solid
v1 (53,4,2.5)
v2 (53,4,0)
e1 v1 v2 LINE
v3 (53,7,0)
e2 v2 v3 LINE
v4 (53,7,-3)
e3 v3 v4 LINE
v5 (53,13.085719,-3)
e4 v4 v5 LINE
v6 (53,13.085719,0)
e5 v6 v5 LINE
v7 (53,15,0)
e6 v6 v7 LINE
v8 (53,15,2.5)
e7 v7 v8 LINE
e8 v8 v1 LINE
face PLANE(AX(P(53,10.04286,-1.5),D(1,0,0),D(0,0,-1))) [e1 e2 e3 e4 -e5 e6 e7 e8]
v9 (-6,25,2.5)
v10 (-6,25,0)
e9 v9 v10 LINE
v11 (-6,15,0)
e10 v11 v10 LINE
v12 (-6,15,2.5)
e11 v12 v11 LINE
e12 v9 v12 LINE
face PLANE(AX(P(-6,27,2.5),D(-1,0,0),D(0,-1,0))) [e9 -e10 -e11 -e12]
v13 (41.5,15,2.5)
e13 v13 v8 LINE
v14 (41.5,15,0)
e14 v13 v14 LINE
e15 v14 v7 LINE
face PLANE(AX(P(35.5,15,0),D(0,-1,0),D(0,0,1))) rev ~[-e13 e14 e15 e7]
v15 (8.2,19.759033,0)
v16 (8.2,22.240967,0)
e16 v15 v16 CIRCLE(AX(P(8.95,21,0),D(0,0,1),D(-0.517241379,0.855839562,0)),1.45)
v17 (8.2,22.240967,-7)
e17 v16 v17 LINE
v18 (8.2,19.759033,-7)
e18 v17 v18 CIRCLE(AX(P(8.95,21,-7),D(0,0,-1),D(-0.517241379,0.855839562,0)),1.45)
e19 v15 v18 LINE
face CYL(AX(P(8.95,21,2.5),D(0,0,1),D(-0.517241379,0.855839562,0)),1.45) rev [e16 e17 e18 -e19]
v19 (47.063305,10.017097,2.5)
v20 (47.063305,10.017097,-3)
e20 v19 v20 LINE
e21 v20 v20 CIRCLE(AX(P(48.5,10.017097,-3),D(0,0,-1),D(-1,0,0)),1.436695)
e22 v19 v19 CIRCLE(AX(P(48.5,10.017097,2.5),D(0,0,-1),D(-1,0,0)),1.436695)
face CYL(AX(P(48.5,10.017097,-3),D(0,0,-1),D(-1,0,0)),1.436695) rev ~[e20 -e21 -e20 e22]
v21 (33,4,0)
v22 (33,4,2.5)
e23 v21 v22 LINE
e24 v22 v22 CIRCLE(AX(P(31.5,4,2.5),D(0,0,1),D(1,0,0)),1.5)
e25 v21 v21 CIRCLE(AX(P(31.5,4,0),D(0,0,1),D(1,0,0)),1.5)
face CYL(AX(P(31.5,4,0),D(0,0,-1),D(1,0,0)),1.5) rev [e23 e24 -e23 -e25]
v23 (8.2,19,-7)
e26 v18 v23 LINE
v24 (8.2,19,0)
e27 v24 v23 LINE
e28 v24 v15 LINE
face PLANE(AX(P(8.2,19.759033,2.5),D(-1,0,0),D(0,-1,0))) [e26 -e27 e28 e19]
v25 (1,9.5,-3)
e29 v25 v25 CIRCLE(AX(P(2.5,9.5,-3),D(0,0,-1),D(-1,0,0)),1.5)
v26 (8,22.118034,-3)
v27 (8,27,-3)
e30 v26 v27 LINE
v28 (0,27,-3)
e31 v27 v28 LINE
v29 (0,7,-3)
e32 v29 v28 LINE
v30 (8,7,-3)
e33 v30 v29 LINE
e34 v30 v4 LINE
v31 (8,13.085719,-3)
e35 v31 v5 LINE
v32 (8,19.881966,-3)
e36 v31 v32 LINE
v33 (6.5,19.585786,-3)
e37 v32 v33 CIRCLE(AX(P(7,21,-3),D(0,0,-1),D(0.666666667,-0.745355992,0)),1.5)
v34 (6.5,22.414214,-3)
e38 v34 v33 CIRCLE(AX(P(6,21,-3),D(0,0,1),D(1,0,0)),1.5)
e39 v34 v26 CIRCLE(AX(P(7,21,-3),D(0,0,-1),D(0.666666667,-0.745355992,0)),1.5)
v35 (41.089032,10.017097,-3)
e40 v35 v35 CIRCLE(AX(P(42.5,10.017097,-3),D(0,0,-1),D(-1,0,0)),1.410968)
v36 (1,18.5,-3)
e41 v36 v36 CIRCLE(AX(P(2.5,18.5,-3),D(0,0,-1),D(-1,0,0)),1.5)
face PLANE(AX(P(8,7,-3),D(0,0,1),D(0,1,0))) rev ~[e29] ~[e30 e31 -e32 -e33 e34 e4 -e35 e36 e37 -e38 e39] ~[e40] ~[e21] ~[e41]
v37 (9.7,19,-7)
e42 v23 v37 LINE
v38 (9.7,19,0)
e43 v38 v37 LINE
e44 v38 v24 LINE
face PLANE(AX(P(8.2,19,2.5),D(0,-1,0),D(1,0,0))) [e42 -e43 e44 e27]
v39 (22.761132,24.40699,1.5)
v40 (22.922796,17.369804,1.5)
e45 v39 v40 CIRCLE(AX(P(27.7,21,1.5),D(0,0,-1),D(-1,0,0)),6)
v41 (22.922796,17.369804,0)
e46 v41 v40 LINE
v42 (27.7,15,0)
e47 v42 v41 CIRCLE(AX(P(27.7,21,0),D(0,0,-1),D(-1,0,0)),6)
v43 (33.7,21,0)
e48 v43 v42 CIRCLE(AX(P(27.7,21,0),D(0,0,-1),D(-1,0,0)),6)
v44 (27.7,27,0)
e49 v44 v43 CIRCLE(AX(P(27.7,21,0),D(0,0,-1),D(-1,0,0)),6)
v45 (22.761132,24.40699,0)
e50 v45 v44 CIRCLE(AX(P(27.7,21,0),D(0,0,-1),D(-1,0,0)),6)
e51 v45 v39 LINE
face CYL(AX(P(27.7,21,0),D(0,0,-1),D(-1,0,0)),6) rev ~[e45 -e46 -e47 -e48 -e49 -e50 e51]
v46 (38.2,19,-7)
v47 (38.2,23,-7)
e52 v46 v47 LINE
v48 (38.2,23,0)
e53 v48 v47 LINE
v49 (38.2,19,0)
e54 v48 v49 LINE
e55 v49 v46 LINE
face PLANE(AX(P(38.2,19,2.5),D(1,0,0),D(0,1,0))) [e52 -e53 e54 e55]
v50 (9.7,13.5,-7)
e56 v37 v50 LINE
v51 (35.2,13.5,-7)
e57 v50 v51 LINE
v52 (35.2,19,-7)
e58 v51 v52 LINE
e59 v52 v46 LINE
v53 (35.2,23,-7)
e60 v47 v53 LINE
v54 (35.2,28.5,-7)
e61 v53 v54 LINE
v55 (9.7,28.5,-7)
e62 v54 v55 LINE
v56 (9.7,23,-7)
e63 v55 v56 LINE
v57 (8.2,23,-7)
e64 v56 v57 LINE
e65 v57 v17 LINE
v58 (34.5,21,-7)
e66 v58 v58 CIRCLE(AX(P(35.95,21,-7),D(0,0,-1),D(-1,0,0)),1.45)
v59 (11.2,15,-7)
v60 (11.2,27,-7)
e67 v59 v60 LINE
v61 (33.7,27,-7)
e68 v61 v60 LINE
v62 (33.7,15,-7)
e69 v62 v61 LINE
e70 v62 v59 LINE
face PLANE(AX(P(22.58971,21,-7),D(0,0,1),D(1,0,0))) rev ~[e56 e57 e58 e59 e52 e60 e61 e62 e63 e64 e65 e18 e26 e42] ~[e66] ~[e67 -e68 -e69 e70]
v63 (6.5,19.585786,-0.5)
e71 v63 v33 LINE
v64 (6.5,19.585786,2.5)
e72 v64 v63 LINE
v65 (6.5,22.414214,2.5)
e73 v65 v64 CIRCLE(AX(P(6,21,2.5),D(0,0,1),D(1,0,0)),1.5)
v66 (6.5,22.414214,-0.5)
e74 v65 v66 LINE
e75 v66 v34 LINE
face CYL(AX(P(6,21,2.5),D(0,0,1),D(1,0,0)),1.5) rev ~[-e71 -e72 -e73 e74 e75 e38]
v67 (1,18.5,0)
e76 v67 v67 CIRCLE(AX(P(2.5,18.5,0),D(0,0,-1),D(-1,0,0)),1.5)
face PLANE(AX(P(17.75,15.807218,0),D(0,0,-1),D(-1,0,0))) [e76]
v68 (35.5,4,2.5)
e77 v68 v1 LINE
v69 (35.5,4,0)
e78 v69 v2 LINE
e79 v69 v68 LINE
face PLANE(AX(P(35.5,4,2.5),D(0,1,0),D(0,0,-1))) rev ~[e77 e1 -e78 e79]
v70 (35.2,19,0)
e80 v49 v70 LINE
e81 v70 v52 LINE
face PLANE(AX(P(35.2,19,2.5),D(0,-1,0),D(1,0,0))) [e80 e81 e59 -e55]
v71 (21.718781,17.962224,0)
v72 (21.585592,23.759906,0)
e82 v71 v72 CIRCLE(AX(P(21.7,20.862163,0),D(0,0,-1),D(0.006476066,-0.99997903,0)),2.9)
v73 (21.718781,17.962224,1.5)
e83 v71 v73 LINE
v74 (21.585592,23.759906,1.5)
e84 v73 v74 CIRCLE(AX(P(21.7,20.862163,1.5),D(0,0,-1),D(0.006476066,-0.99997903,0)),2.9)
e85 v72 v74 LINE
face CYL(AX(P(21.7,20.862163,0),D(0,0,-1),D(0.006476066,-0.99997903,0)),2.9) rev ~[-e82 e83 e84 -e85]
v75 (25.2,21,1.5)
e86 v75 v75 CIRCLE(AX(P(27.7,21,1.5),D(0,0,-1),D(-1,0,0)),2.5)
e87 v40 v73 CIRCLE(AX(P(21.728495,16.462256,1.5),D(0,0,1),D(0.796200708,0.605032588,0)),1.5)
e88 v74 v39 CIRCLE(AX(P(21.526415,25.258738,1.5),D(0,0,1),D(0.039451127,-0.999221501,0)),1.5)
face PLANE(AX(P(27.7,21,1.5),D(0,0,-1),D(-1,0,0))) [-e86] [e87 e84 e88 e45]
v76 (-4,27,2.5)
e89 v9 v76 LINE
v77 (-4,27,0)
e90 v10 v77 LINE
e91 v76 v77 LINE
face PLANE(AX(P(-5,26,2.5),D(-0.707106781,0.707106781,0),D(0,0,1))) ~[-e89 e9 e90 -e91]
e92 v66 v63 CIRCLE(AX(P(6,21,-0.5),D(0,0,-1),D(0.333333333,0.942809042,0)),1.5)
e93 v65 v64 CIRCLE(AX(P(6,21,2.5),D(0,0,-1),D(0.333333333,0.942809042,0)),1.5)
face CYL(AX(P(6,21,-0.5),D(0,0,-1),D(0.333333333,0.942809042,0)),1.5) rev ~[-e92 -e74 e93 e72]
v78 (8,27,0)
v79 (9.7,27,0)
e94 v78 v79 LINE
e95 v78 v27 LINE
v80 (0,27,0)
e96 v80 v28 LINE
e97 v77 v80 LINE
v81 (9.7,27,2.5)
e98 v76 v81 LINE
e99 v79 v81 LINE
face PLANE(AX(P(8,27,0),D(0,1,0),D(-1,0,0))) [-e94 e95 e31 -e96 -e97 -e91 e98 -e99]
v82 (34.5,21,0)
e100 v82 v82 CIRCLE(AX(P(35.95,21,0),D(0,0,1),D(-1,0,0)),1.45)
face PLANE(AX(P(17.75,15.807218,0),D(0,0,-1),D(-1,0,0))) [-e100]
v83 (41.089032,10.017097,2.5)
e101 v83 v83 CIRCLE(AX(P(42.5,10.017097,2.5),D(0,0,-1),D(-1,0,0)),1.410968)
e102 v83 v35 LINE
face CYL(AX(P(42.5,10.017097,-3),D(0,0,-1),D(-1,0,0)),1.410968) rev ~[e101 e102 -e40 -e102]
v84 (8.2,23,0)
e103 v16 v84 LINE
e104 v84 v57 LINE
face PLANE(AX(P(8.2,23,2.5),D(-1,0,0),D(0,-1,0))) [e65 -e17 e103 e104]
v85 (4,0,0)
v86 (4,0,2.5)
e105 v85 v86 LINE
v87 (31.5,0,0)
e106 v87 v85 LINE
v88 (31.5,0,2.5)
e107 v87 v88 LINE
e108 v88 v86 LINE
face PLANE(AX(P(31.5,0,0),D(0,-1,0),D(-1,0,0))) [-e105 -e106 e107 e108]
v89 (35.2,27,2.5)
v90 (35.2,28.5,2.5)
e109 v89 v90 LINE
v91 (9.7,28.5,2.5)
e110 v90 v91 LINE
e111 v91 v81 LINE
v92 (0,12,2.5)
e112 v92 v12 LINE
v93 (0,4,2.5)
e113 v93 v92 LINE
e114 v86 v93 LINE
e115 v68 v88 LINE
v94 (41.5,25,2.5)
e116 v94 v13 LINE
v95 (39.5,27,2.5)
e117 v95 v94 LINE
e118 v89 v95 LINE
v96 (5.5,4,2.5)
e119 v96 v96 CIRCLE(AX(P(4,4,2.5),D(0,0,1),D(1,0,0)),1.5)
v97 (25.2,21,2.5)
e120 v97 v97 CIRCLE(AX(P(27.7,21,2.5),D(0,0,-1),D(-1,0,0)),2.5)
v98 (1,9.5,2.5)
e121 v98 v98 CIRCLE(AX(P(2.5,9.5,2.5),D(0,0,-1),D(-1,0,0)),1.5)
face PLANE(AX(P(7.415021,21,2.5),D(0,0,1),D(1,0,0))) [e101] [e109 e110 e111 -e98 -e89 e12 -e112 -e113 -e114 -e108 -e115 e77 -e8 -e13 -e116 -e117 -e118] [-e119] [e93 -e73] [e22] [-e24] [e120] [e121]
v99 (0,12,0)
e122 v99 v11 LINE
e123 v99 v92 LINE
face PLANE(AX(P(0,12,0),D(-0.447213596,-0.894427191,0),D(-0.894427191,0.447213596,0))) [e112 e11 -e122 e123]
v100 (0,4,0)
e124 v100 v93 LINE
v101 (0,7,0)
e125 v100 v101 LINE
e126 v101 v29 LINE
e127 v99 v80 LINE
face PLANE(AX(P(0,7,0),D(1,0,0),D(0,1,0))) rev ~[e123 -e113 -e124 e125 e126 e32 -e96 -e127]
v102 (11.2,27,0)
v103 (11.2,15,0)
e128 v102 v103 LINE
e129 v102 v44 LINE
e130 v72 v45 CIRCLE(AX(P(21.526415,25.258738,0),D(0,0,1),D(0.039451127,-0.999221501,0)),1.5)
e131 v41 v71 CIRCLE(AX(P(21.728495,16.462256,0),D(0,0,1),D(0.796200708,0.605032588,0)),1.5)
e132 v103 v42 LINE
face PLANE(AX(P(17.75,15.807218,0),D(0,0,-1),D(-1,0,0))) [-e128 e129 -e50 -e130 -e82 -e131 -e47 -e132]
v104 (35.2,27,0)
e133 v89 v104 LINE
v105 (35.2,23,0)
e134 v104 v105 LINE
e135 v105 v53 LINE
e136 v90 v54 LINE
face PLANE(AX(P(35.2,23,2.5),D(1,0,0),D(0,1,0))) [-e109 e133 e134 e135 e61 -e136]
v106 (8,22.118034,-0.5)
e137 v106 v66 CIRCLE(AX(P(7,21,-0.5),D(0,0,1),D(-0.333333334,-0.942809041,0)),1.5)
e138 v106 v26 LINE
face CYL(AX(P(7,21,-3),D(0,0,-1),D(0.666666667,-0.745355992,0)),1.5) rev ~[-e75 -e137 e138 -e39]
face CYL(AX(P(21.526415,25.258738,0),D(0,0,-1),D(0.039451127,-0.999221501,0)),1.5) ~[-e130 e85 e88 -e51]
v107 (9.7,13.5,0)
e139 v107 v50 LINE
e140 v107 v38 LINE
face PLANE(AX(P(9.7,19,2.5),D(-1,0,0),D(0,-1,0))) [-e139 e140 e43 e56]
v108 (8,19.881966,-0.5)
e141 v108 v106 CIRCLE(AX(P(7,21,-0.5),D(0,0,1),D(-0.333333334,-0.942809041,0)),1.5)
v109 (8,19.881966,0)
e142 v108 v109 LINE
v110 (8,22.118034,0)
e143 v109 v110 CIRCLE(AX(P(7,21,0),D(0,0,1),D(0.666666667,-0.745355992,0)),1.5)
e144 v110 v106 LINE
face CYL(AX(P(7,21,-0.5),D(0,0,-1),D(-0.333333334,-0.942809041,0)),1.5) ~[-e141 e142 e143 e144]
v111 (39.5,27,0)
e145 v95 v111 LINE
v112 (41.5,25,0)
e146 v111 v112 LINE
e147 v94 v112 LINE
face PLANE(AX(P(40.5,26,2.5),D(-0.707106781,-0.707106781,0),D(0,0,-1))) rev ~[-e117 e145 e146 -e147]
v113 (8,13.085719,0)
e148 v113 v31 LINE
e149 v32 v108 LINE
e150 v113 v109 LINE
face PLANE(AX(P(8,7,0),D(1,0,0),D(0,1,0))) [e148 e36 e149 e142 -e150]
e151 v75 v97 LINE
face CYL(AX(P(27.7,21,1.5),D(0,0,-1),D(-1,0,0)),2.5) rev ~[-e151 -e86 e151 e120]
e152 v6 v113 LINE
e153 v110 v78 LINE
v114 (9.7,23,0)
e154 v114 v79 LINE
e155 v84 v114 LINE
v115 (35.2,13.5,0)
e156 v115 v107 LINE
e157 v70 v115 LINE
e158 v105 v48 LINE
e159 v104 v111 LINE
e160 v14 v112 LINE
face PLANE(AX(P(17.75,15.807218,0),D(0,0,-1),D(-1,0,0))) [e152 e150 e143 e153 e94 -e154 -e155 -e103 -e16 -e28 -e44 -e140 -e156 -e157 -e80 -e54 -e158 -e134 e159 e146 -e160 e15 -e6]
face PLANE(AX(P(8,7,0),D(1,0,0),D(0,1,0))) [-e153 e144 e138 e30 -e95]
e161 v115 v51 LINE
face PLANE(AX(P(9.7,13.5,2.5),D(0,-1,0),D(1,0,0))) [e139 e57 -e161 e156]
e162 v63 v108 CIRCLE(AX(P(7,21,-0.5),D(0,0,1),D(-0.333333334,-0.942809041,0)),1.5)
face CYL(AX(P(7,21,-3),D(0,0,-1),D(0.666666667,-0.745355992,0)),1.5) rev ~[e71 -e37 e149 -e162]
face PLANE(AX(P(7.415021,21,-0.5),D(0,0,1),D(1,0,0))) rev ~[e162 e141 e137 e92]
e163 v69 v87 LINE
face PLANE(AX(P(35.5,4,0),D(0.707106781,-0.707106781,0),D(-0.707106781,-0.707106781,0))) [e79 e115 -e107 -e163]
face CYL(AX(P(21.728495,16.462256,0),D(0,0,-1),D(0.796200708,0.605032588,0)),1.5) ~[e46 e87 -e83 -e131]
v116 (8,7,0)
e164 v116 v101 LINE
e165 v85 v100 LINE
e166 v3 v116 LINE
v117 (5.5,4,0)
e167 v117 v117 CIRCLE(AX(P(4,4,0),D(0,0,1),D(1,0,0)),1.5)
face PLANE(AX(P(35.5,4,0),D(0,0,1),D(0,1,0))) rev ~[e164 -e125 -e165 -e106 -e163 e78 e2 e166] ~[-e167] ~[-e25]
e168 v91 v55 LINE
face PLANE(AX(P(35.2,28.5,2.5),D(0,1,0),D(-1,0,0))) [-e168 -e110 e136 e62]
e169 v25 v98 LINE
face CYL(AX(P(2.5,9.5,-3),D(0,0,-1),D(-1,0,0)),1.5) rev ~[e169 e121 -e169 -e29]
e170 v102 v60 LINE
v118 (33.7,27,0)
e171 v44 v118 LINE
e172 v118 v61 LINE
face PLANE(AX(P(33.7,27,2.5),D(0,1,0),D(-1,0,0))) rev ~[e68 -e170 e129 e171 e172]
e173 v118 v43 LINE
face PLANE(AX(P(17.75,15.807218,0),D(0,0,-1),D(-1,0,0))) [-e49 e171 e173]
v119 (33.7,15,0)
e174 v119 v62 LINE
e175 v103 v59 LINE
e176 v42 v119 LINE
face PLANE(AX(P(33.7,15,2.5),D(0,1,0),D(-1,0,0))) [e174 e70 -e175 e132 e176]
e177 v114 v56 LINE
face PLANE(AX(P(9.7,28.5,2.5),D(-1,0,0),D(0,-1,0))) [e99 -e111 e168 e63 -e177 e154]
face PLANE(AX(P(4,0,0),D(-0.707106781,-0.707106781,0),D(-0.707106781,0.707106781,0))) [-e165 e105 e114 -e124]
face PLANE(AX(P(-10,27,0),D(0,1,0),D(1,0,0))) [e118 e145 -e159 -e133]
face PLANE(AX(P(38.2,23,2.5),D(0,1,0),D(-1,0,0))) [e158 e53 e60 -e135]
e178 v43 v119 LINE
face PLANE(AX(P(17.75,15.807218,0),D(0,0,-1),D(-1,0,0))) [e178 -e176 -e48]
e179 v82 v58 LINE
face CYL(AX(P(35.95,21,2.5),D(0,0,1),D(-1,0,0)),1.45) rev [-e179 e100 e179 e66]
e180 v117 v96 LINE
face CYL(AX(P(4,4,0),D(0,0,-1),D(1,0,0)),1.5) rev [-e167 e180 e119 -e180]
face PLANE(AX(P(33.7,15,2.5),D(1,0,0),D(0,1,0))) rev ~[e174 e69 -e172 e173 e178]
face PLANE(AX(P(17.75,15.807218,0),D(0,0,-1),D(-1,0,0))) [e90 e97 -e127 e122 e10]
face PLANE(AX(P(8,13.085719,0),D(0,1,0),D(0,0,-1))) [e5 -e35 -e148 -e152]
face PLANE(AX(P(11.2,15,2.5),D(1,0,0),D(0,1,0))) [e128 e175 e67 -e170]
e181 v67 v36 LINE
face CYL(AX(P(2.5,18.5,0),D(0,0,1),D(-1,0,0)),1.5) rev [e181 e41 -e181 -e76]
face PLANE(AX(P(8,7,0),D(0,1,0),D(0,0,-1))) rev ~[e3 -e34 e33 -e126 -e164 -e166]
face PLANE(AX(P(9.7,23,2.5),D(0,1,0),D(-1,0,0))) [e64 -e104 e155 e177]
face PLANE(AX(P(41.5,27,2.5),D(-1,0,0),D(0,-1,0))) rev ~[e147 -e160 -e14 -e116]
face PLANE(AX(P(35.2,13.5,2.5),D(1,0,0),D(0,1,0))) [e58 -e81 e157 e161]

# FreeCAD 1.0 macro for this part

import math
import FreeCAD as App
import Part
import Sketcher

V = App.Vector


def edges_at(feature, points):
    """Names of the edges that pass closest to the given points."""
    edges = feature.Shape.Edges
    near = lambda p: min(range(len(edges)), key=lambda i: edges[i].distToShape(Part.Vertex(*p))[0])
    return sorted({f"Edge{near(p) + 1}" for p in points})


def add_polygon(sketch, points):
    """Adds a closed chain of lines whose ends are joined by coincident constraints."""
    first, n = sketch.GeometryCount, len(points)
    for a, b in zip(points, points[1:] + points[:1]):
        sketch.addGeometry(Part.LineSegment(App.Vector(*a, 0), App.Vector(*b, 0)), False)
    for i in range(n):
        sketch.addConstraint(Sketcher.Constraint("Coincident", first + i, 2, first + (i + 1) % n, 1))

doc = App.newDocument("Part")
body = doc.addObject("PartDesign::Body", "Body")

# Sketch on XY plane
sketch1 = body.newObject("Sketcher::SketchObject", "Sketch")
sketch1.AttachmentSupport = (doc.getObject("XY_Plane"), [""])
sketch1.MapMode = "FlatFace"
add_polygon(sketch1, [(0, 4), (4, 0), (31.5, 0), (35.5, 4), (35.5, 12), (45.5, 17), (45.5, 27), (-10, 27), (-10, 17), (0, 12)])  # lines 0-9
sketch1.addGeometry(Part.Circle(V(31.5, 4, 0), V(0, 0, 1), 1.5), False)  # 10
sketch1.addGeometry(Part.Circle(V(4, 4, 0), V(0, 0, 1), 1.5), False)  # 11
sketch1.addGeometry(Part.Circle(V(28.5, 21, 0), V(0, 0, 1), 1.5), False)  # 12
sketch1.addGeometry(Part.Circle(V(7, 21, 0), V(0, 0, 1), 1.5), False)  # 13
sketch1.addConstraint([
    Sketcher.Constraint("Horizontal", 1),
    Sketcher.Constraint("Vertical", 3),
    Sketcher.Constraint("Vertical", 5),
    Sketcher.Constraint("Horizontal", 6),
    Sketcher.Constraint("Vertical", 7),
    Sketcher.Constraint("Vertical", 9),
    Sketcher.Constraint("Equal", 10, 11),
    Sketcher.Constraint("Equal", 11, 12),
    Sketcher.Constraint("Equal", 12, 13),
    Sketcher.Constraint("PointOnObject", 0, 2, -1),
    Sketcher.Constraint("PointOnObject", 8, 2, -2),
    Sketcher.Constraint("Perpendicular", 0, 2),
    Sketcher.Constraint("Horizontal", 10, 3, 11, 3),
    Sketcher.Constraint("Horizontal", 12, 3, 13, 3),
    Sketcher.Constraint("Horizontal", 11, 3, 2, 2),
    Sketcher.Constraint("Horizontal", 4, 2, 7, 2),
    Sketcher.Constraint("Horizontal", 3, 2, 8, 2),
    Sketcher.Constraint("Horizontal", 2, 2, 9, 2),
    Sketcher.Constraint("Vertical", 11, 3, 0, 2),
    Sketcher.Constraint("Vertical", 10, 3, 1, 2),
    Sketcher.Constraint("Equal", 0, 2),
    Sketcher.Constraint("Equal", 4, 8),
    Sketcher.Constraint("Diameter", 10, 3.0),
    Sketcher.Constraint("DistanceY", 3, 1, 3, 2, 8.0),
    Sketcher.Constraint("DistanceY", 5, 1, 5, 2, 10.0),
    Sketcher.Constraint("DistanceX", 1, 1, 1, 2, 27.5),
    Sketcher.Constraint("DistanceX", 6, 2, 6, 1, 55.5),
    Sketcher.Constraint("DistanceY", -1, 1, 10, 3, 4.0),
    Sketcher.Constraint("DistanceY", -1, 1, 12, 3, 21.0),
    Sketcher.Constraint("DistanceX", -1, 1, 13, 3, 7.0),
    Sketcher.Constraint("DistanceY", -1, 1, 4, 2, 17.0),
    Sketcher.Constraint("DistanceX", 12, 3, 10, 3, 3.0),
])
pad1 = body.newObject("PartDesign::Pad", "Pad")
pad1.Profile = sketch1
pad1.Length = 2.5

# Sketch on XY plane
sketch2 = body.newObject("Sketcher::SketchObject", "Sketch001")
sketch2.AttachmentSupport = (doc.getObject("XY_Plane"), [""])
sketch2.MapMode = "FlatFace"
sketch2.addGeometry(Part.LineSegment(V(9.7, 28.5, 0), V(35.2, 28.5, 0)), False)  # 0
sketch2.addGeometry(Part.LineSegment(V(35.2, 28.5, 0), V(35.2, 23, 0)), False)  # 1
sketch2.addGeometry(Part.LineSegment(V(35.2, 23, 0), V(38.2, 23, 0)), False)  # 2
sketch2.addGeometry(Part.LineSegment(V(38.2, 23, 0), V(38.2, 19, 0)), False)  # 3
sketch2.addGeometry(Part.LineSegment(V(38.2, 19, 0), V(35.2, 19, 0)), False)  # 4
sketch2.addGeometry(Part.LineSegment(V(35.2, 19, 0), V(35.2, 13.5, 0)), False)  # 5
sketch2.addGeometry(Part.LineSegment(V(35.2, 13.5, 0), V(9.7, 13.5, 0)), False)  # 6
sketch2.addGeometry(Part.LineSegment(V(9.7, 13.5, 0), V(9.7, 19, 0)), False)  # 7
sketch2.addGeometry(Part.LineSegment(V(9.7, 19, 0), V(8.2, 19, 0)), False)  # 8
sketch2.addGeometry(Part.LineSegment(V(8.2, 19, 0), V(8.2, 19.8, 0)), False)  # 9
sketch2.addGeometry(Part.ArcOfCircle(Part.Circle(V(8.9, 21, 0), V(0, 0, 1), 1.4), math.radians(-121), math.radians(121)), False)  # 10
sketch2.addGeometry(Part.LineSegment(V(8.2, 22.2, 0), V(8.2, 23, 0)), False)  # 11
sketch2.addGeometry(Part.LineSegment(V(8.2, 23, 0), V(9.7, 23, 0)), False)  # 12
sketch2.addGeometry(Part.LineSegment(V(9.7, 23, 0), V(9.7, 28.5, 0)), False)  # 13
add_polygon(sketch2, [(33.7, 15), (33.7, 27), (11.2, 27), (11.2, 15)])  # lines 14-17
sketch2.addGeometry(Part.Circle(V(36, 21, 0), V(0, 0, 1), 1.4), False)  # 18
sketch2.addConstraint([
    Sketcher.Constraint("Coincident", 0, 2, 1, 1),
    Sketcher.Constraint("Coincident", 1, 2, 2, 1),
    Sketcher.Constraint("Coincident", 2, 2, 3, 1),
    Sketcher.Constraint("Coincident", 3, 2, 4, 1),
    Sketcher.Constraint("Coincident", 4, 2, 5, 1),
    Sketcher.Constraint("Coincident", 5, 2, 6, 1),
    Sketcher.Constraint("Coincident", 6, 2, 7, 1),
    Sketcher.Constraint("Coincident", 7, 2, 8, 1),
    Sketcher.Constraint("Coincident", 8, 2, 9, 1),
    Sketcher.Constraint("Coincident", 9, 2, 10, 1),
    Sketcher.Constraint("Coincident", 10, 2, 11, 1),
    Sketcher.Constraint("Coincident", 11, 2, 12, 1),
    Sketcher.Constraint("Coincident", 12, 2, 13, 1),
    Sketcher.Constraint("Coincident", 13, 2, 0, 1),
    Sketcher.Constraint("Horizontal", 0),
    Sketcher.Constraint("Vertical", 1),
    Sketcher.Constraint("Horizontal", 2),
    Sketcher.Constraint("Vertical", 3),
    Sketcher.Constraint("Horizontal", 4),
    Sketcher.Constraint("Vertical", 5),
    Sketcher.Constraint("Horizontal", 6),
    Sketcher.Constraint("Vertical", 7),
    Sketcher.Constraint("Horizontal", 8),
    Sketcher.Constraint("Vertical", 9),
    Sketcher.Constraint("Vertical", 11),
    Sketcher.Constraint("Horizontal", 12),
    Sketcher.Constraint("Vertical", 13),
    Sketcher.Constraint("Vertical", 14),
    Sketcher.Constraint("Horizontal", 15),
    Sketcher.Constraint("Vertical", 16),
    Sketcher.Constraint("Horizontal", 17),
    Sketcher.Constraint("Equal", 10, 18),
    Sketcher.Constraint("Horizontal", 10, 3, 18, 3),
    Sketcher.Constraint("Horizontal", 4, 2, 7, 2),
    Sketcher.Constraint("Horizontal", 2, 2, 11, 2),
    Sketcher.Constraint("Vertical", 1, 2, 4, 2),
    Sketcher.Constraint("Vertical", 9, 2, 10, 2),
    Sketcher.Constraint("Vertical", 7, 2, 12, 2),
    Sketcher.Constraint("Equal", 1, 5),
    Sketcher.Constraint("Equal", 9, 11),
    Sketcher.Constraint("Diameter", 18, 2.9),
    Sketcher.Constraint("DistanceX", 2, 1, 2, 2, 3.0),
    Sketcher.Constraint("DistanceY", 3, 2, 3, 1, 4.0),
    Sketcher.Constraint("DistanceY", 14, 1, 14, 2, 12.0),
    Sketcher.Constraint("DistanceX", 0, 1, 0, 2, 25.5),
    Sketcher.Constraint("DistanceX", 8, 2, 8, 1, 1.5),
    Sketcher.Constraint("DistanceX", 15, 2, 15, 1, 22.5),
    Sketcher.Constraint("DistanceY", 1, 2, 1, 1, 5.5),
    Sketcher.Constraint("DistanceY", -1, 1, 10, 3, 21.0),
    Sketcher.Constraint("DistanceY", -1, 1, 14, 2, 27.0),
    Sketcher.Constraint("DistanceX", 10, 3, 18, 3, 27.0),
    Sketcher.Constraint("DistanceX", 11, 2, 15, 2, 3.0),
    Sketcher.Constraint("DistanceX", -1, 1, 0, 2, 35.2),
    Sketcher.Constraint("DistanceX", -1, 1, 10, 3, 8.95),
])
pad2 = body.newObject("PartDesign::Pad", "Pad001")
pad2.Profile = sketch2
pad2.Type = "TwoLengths"
pad2.Length = 7
pad2.Length2 = 2.5
pad2.Reversed = True

# Sketch on XY plane
sketch3 = body.newObject("Sketcher::SketchObject", "Sketch002")
sketch3.AttachmentSupport = (doc.getObject("XY_Plane"), [""])
sketch3.MapMode = "FlatFace"
add_polygon(sketch3, [(8, 27), (8, 7), (0, 7), (0, 27)])  # lines 0-3
sketch3.addGeometry(Part.Circle(V(2.5, 9.5, 0), V(0, 0, 1), 1.5), False)  # 4
sketch3.addGeometry(Part.Circle(V(2.5, 18.5, 0), V(0, 0, 1), 1.5), False)  # 5
sketch3.addConstraint([
    Sketcher.Constraint("Vertical", 0),
    Sketcher.Constraint("Horizontal", 1),
    Sketcher.Constraint("Vertical", 2),
    Sketcher.Constraint("Horizontal", 3),
    Sketcher.Constraint("Equal", 4, 5),
    Sketcher.Constraint("PointOnObject", 1, 2, -2),
    Sketcher.Constraint("Vertical", 4, 3, 5, 3),
    Sketcher.Constraint("Diameter", 4, 3.0),
    Sketcher.Constraint("DistanceX", 1, 2, 1, 1, 8.0),
    Sketcher.Constraint("DistanceY", 0, 2, 0, 1, 20.0),
    Sketcher.Constraint("DistanceY", -1, 1, 0, 2, 7.0),
    Sketcher.Constraint("DistanceY", 4, 3, 5, 3, 9.0),
    Sketcher.Constraint("DistanceX", -1, 1, 4, 3, 2.5),
    Sketcher.Constraint("DistanceY", -1, 1, 4, 3, 9.5),
])
pad3 = body.newObject("PartDesign::Pad", "Pad002")
pad3.Profile = sketch3
pad3.Length = 3
pad3.Reversed = True

# Sketch on XY plane
sketch4 = body.newObject("Sketcher::SketchObject", "Sketch003")
sketch4.AttachmentSupport = (doc.getObject("XY_Plane"), [""])
sketch4.MapMode = "FlatFace"
sketch4.AttachmentOffset = App.Placement(V(0, 0, -3), App.Rotation())
sketch4.addGeometry([
    Part.Circle(V(2.5, 9.5, 0), V(0, 0, 1), 1.5),
    Part.Circle(V(7, 21, 0), V(0, 0, 1), 1.5),
], False)
sketch4.addConstraint([
    Sketcher.Constraint("Equal", 0, 1),
    Sketcher.Constraint("Diameter", 0, 3.0),
    Sketcher.Constraint("DistanceX", -1, 1, 1, 3, 7.0),
    Sketcher.Constraint("DistanceY", -1, 1, 1, 3, 21.0),
    Sketcher.Constraint("DistanceX", -1, 1, 0, 3, 2.5),
    Sketcher.Constraint("DistanceY", -1, 1, 0, 3, 9.5),
])
pocket1 = body.newObject("PartDesign::Pocket", "Pocket")
pocket1.Profile = sketch4
pocket1.Type = "ThroughAll"
pocket1.Reversed = True

# Sketch on XY plane
sketch5 = body.newObject("Sketcher::SketchObject", "Sketch004")
sketch5.AttachmentSupport = (doc.getObject("XY_Plane"), [""])
sketch5.MapMode = "FlatFace"
sketch5.addGeometry(Part.Circle(V(27, 21, 0), V(0, 0, 1), 3.5), False)
sketch5.addConstraint([
    Sketcher.Constraint("DistanceX", -1, 1, 0, 3, 27.0),
    Sketcher.Constraint("DistanceY", -1, 1, 0, 3, 21.0),
    Sketcher.Constraint("Diameter", 0, 6.982568),
])
pad4 = body.newObject("PartDesign::Pad", "Pad003")
pad4.Profile = sketch5
pad4.Length = 2.5

# Sketch on XY plane
sketch6 = body.newObject("Sketcher::SketchObject", "Sketch005")
sketch6.AttachmentSupport = (doc.getObject("XY_Plane"), [""])
sketch6.MapMode = "FlatFace"
sketch6.addGeometry(Part.Circle(V(28, 21, 0), V(0, 0, 1), 6), False)
sketch6.addConstraint([
    Sketcher.Constraint("Diameter", 0, 12.0),
    Sketcher.Constraint("DistanceY", -1, 1, 0, 3, 21.0),
    Sketcher.Constraint("DistanceX", -1, 1, 0, 3, 27.7),
])
pocket2 = body.newObject("PartDesign::Pocket", "Pocket001")
pocket2.Profile = sketch6
pocket2.Length = 1.5
pocket2.Reversed = True

# Sketch on XY plane
sketch7 = body.newObject("Sketcher::SketchObject", "Sketch006")
sketch7.AttachmentSupport = (doc.getObject("XY_Plane"), [""])
sketch7.MapMode = "FlatFace"
sketch7.addGeometry([
    Part.ArcOfCircle(Part.Circle(V(21.7, 20.9, 0), V(0, 0, 1), 2.9), math.radians(92), math.radians(270)),
    Part.ArcOfCircle(Part.Circle(V(21.5, 25.3, 0), V(0, 0, 1), 1.5), math.radians(-88), math.radians(-35)),
    Part.ArcOfCircle(Part.Circle(V(27.7, 21, 0), V(0, 0, 1), 6), math.radians(145), math.radians(217)),
    Part.ArcOfCircle(Part.Circle(V(21.7, 16.5, 0), V(0, 0, 1), 1.5), math.radians(37), math.radians(90)),
], False)
sketch7.addConstraint([
    Sketcher.Constraint("Tangent", 0, 1, 1, 1),
    Sketcher.Constraint("Tangent", 1, 2, 2, 1),
    Sketcher.Constraint("Tangent", 2, 2, 3, 1),
    Sketcher.Constraint("Tangent", 3, 2, 0, 2),
    Sketcher.Constraint("Equal", 1, 3),
    Sketcher.Constraint("Radius", 2, 6.0),
    Sketcher.Constraint("Radius", 0, 2.9),
    Sketcher.Constraint("Radius", 1, 1.5),
    Sketcher.Constraint("DistanceY", -1, 1, 2, 3, 21.0),
    Sketcher.Constraint("DistanceX", 0, 3, 2, 3, 6.0),
    Sketcher.Constraint("DistanceX", -1, 1, 0, 3, 21.7),
    Sketcher.Constraint("DistanceX", 3, 3, 2, 2, 1.194301),
])
pocket3 = body.newObject("PartDesign::Pocket", "Pocket002")
pocket3.Profile = sketch7
pocket3.Length = 1.5
pocket3.Reversed = True

# Sketch on XY plane
sketch8 = body.newObject("Sketcher::SketchObject", "Sketch007")
sketch8.AttachmentSupport = (doc.getObject("XY_Plane"), [""])
sketch8.MapMode = "FlatFace"
sketch8.AttachmentOffset = App.Placement(V(0, 0, 1.5), App.Rotation())
sketch8.addGeometry(Part.Circle(V(27.7, 21, 0), V(0, 0, 1), 2.5), False)
sketch8.addConstraint([
    Sketcher.Constraint("Diameter", 0, 5.0),
    Sketcher.Constraint("DistanceY", -1, 1, 0, 3, 21.0),
    Sketcher.Constraint("DistanceX", -1, 1, 0, 3, 27.7),
])
pocket4 = body.newObject("PartDesign::Pocket", "Pocket003")
pocket4.Profile = sketch8
pocket4.Length = 1.5
pocket4.Reversed = True

# Sketch on XY plane
sketch9 = body.newObject("Sketcher::SketchObject", "Sketch008")
sketch9.AttachmentSupport = (doc.getObject("XY_Plane"), [""])
sketch9.MapMode = "FlatFace"
sketch9.AttachmentOffset = App.Placement(V(0, 0, 2.5), App.Rotation())
add_polygon(sketch9, [(-6, 15), (-6, 27), (-10, 27), (-10, 17)])  # lines 0-3
add_polygon(sketch9, [(41.5, 27), (41.5, 15), (45.5, 17), (45.5, 27)])  # lines 4-7
sketch9.addConstraint([
    Sketcher.Constraint("Vertical", 0),
    Sketcher.Constraint("Horizontal", 1),
    Sketcher.Constraint("Vertical", 2),
    Sketcher.Constraint("Vertical", 4),
    Sketcher.Constraint("Vertical", 6),
    Sketcher.Constraint("Horizontal", 7),
    Sketcher.Constraint("Horizontal", 3, 2, 4, 2),
    Sketcher.Constraint("Horizontal", 2, 2, 5, 2),
    Sketcher.Constraint("Horizontal", 1, 2, 6, 2),
    Sketcher.Constraint("Equal", 1, 7),
    Sketcher.Constraint("DistanceX", 1, 2, 1, 1, 4.0),
    Sketcher.Constraint("DistanceY", 0, 1, 0, 2, 12.0),
    Sketcher.Constraint("DistanceY", 2, 2, 2, 1, 10.0),
    Sketcher.Constraint("DistanceX", 0, 2, -1, 1, 6.0),
    Sketcher.Constraint("DistanceY", -1, 1, 0, 2, 27.0),
    Sketcher.Constraint("DistanceX", -1, 1, 4, 2, 41.5),
])
pocket5 = body.newObject("PartDesign::Pocket", "Pocket004")
pocket5.Profile = sketch9
pocket5.Type = "ThroughAll"
doc.recompute()

chamfer = body.newObject("PartDesign::Chamfer", "Chamfer")
chamfer.Base = (pocket5, edges_at(pocket5, [(-6, 27, 1.25), (41.5, 27, 1.25)]))
chamfer.Size = 2

# Sketch on XY plane
sketch10 = body.newObject("Sketcher::SketchObject", "Sketch009")
sketch10.AttachmentSupport = (doc.getObject("XY_Plane"), [""])
sketch10.MapMode = "FlatFace"
sketch10.AttachmentOffset = App.Placement(V(0, 0, 2.5), App.Rotation())
sketch10.addGeometry([
    Part.ArcOfCircle(Part.Circle(V(7, 21, 0), V(0, 0, 1), 1.5), math.radians(-109), math.radians(109)),
    Part.ArcOfCircle(Part.Circle(V(6, 21, 0), V(0, 0, 1), 1.5), math.radians(71), math.radians(289)),
], False)
sketch10.addConstraint([
    Sketcher.Constraint("Coincident", 0, 1, 1, 2),
    Sketcher.Constraint("Coincident", 1, 1, 0, 2),
    Sketcher.Constraint("Equal", 0, 1),
    Sketcher.Constraint("Horizontal", 0, 3, 1, 3),
    Sketcher.Constraint("Radius", 0, 1.5),
    Sketcher.Constraint("DistanceX", -1, 1, 0, 3, 7.0),
    Sketcher.Constraint("DistanceY", -1, 1, 0, 3, 21.0),
    Sketcher.Constraint("DistanceX", -1, 1, 1, 3, 6.0),
])
pocket6 = body.newObject("PartDesign::Pocket", "Pocket005")
pocket6.Profile = sketch10
pocket6.Type = "ThroughAll"

# Sketch on XY plane
sketch11 = body.newObject("Sketcher::SketchObject", "Sketch010")
sketch11.AttachmentSupport = (doc.getObject("XY_Plane"), [""])
sketch11.MapMode = "FlatFace"
sketch11.AttachmentOffset = App.Placement(V(0, 0, -0.5), App.Rotation())
sketch11.addGeometry([
    Part.ArcOfCircle(Part.Circle(V(7, 21, 0), V(0, 0, 1), 1.5), math.radians(-109), math.radians(109)),
    Part.ArcOfCircle(Part.Circle(V(6, 21, 0), V(0, 0, 1), 1.5), math.radians(-71), math.radians(71)),
], False)
sketch11.addConstraint([
    Sketcher.Constraint("Coincident", 0, 1, 1, 1),
    Sketcher.Constraint("Coincident", 1, 2, 0, 2),
    Sketcher.Constraint("Equal", 0, 1),
    Sketcher.Constraint("Horizontal", 0, 3, 1, 3),
    Sketcher.Constraint("Radius", 0, 1.5),
    Sketcher.Constraint("DistanceX", -1, 1, 0, 3, 7.0),
    Sketcher.Constraint("DistanceY", -1, 1, 0, 3, 21.0),
    Sketcher.Constraint("DistanceX", -1, 1, 1, 3, 6.0),
])
pad5 = body.newObject("PartDesign::Pad", "Pad004")
pad5.Profile = sketch11
pad5.Length = 3

# Sketch on YZ plane
sketch12 = body.newObject("Sketcher::SketchObject", "Sketch011")
sketch12.AttachmentSupport = (doc.getObject("YZ_Plane"), [""])
sketch12.MapMode = "FlatFace"
sketch12.AttachmentOffset = App.Placement(V(0, 0, 8), App.Rotation())
add_polygon(sketch12, [(13.1, 0), (7, 0), (7, -3), (13.1, -3)])  # lines 0-3
sketch12.addConstraint([
    Sketcher.Constraint("Horizontal", 0),
    Sketcher.Constraint("Vertical", 1),
    Sketcher.Constraint("Horizontal", 2),
    Sketcher.Constraint("Vertical", 3),
    Sketcher.Constraint("PointOnObject", 0, 2, -1),
    Sketcher.Constraint("DistanceY", 1, 2, 1, 1, 3.0),
    Sketcher.Constraint("DistanceX", -1, 1, 0, 2, 7.0),
    Sketcher.Constraint("DistanceX", 0, 2, 0, 1, 6.085719),
])
pad6 = body.newObject("PartDesign::Pad", "Pad005")
pad6.Profile = sketch12
pad6.Length = 45

# Sketch on XY plane
sketch13 = body.newObject("Sketcher::SketchObject", "Sketch012")
sketch13.AttachmentSupport = (doc.getObject("XY_Plane"), [""])
sketch13.MapMode = "FlatFace"
sketch13.AttachmentOffset = App.Placement(V(0, 0, -3), App.Rotation())
sketch13.addGeometry([
    Part.Circle(V(42.5, 10, 0), V(0, 0, 1), 1.4),
    Part.Circle(V(48.5, 10, 0), V(0, 0, 1), 1.4),
], False)
sketch13.addConstraint([
    Sketcher.Constraint("Horizontal", 0, 3, 1, 3),
    Sketcher.Constraint("DistanceX", 0, 3, 1, 3, 6.0),
    Sketcher.Constraint("DistanceX", -1, 1, 0, 3, 42.5),
    Sketcher.Constraint("Diameter", 1, 2.87339),
    Sketcher.Constraint("Diameter", 0, 2.821936),
    Sketcher.Constraint("DistanceY", -1, 1, 0, 3, 10.017097),
])
pocket7 = body.newObject("PartDesign::Pocket", "Pocket006")
pocket7.Profile = sketch13
pocket7.Length = 45
pocket7.Reversed = True

# Sketch on YZ plane
sketch14 = body.newObject("Sketcher::SketchObject", "Sketch013")
sketch14.AttachmentSupport = (doc.getObject("YZ_Plane"), [""])
sketch14.MapMode = "FlatFace"
sketch14.AttachmentOffset = App.Placement(V(0, 0, 35.5), App.Rotation())
add_polygon(sketch14, [(15, 2.5), (4, 2.5), (4, 0), (15, 0)])  # lines 0-3
sketch14.addConstraint([
    Sketcher.Constraint("Horizontal", 0),
    Sketcher.Constraint("Vertical", 1),
    Sketcher.Constraint("Horizontal", 2),
    Sketcher.Constraint("Vertical", 3),
    Sketcher.Constraint("PointOnObject", 1, 2, -1),
    Sketcher.Constraint("DistanceX", 0, 2, 0, 1, 11.0),
    Sketcher.Constraint("DistanceY", 1, 2, 1, 1, 2.5),
    Sketcher.Constraint("DistanceX", -1, 1, 0, 2, 4.0),
])
pad7 = body.newObject("PartDesign::Pad", "Pad006")
pad7.Profile = sketch14
pad7.Length = 17.5

# Sketch on XY plane
sketch15 = body.newObject("Sketcher::SketchObject", "Sketch014")
sketch15.AttachmentSupport = (doc.getObject("XY_Plane"), [""])
sketch15.MapMode = "FlatFace"
sketch15.addGeometry([
    Part.Circle(V(48.5, 10, 0), V(0, 0, 1), 1.4),
    Part.Circle(V(42.5, 10, 0), V(0, 0, 1), 1.4),
], False)
sketch15.addConstraint([
    Sketcher.Constraint("Horizontal", 0, 3, 1, 3),
    Sketcher.Constraint("DistanceX", 1, 3, 0, 3, 6.0),
    Sketcher.Constraint("DistanceX", -1, 1, 0, 3, 48.5),
    Sketcher.Constraint("Diameter", 0, 2.87339),
    Sketcher.Constraint("Diameter", 1, 2.821936),
    Sketcher.Constraint("DistanceY", -1, 1, 0, 3, 10.017097),
])
pocket8 = body.newObject("PartDesign::Pocket", "Pocket007")
pocket8.Profile = sketch15
pocket8.Length = 17.5
pocket8.Reversed = True

doc.recompute()
